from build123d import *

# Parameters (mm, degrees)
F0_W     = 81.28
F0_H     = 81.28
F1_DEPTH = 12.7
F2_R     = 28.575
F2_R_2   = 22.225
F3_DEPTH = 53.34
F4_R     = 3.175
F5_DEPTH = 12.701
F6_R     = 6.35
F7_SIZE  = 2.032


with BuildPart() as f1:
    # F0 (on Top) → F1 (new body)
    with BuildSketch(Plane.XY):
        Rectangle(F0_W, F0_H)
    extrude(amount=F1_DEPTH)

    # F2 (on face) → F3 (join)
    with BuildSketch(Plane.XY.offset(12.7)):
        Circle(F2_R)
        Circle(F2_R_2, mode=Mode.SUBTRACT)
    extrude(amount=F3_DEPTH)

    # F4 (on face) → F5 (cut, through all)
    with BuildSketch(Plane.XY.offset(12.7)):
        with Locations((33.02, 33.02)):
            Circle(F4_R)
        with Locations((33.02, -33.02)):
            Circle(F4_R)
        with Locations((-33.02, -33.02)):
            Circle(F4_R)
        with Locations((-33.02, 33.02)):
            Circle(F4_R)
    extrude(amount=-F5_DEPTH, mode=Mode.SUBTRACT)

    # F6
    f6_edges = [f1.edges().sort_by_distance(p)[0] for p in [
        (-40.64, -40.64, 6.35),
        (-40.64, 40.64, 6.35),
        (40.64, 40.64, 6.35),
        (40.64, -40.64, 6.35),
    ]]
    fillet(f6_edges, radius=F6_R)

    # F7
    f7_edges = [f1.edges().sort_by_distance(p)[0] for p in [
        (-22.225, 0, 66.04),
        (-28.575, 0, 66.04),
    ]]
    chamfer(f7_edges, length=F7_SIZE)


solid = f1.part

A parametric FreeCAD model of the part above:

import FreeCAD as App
import Part
import Sketcher
from FreeCAD import Vector
Q = App.Units.Quantity


def edges_at(feature, points):
    """Names of the edges that pass closest to the given points."""
    edges = feature.Shape.Edges
    near = lambda p: min(range(len(edges)), key=lambda i: edges[i].distToShape(Part.Vertex(*p))[0])
    return sorted({f"Edge{near(p) + 1}" for p in points})


def add_polygon(sketch, points):
    """Adds a closed chain of lines whose ends are joined by coincident constraints."""
    first, n = sketch.GeometryCount, len(points)
    for a, b in zip(points, points[1:] + points[:1]):
        sketch.addGeometry(Part.LineSegment(App.Vector(*a, 0), App.Vector(*b, 0)), False)
    for i in range(n):
        sketch.addConstraint(Sketcher.Constraint("Coincident", first + i, 2, first + (i + 1) % n, 1))

doc = App.newDocument("Part")
body = doc.addObject("PartDesign::Body", "Body")

# Sketch on XY plane
sketch1 = doc.addObject("Sketcher::SketchObject", "Sketch")
body.addObject(sketch1)
sketch1.AttachmentSupport = (doc.XY_Plane, [""])
sketch1.MapMode = "FlatFace"
add_polygon(sketch1, [(-40.64, 40.64), (-40.64, -40.64), (40.64, -40.64), (40.64, 40.64)])  # lines 0-3
sketch1.addConstraint([
    Sketcher.Constraint("Vertical", 0),
    Sketcher.Constraint("Horizontal", 1),
    Sketcher.Constraint("Vertical", 2),
    Sketcher.Constraint("Horizontal", 3),
    Sketcher.Constraint("Symmetric", 0, 2, 2, 2, -1, 1),
    Sketcher.Constraint("Equal", 3, 0),
    Sketcher.Constraint("DistanceX", 1, 1, 1, 2, Q("3.2 in")),
])
pad1 = doc.addObject("PartDesign::Pad", "Pad")
body.addObject(pad1)
pad1.Profile = sketch1
pad1.Length = Q("0.5 in")

# Sketch on XY plane
sketch2 = doc.addObject("Sketcher::SketchObject", "Sketch001")
body.addObject(sketch2)
sketch2.AttachmentSupport = (doc.XY_Plane, [""])
sketch2.MapMode = "FlatFace"
sketch2.AttachmentOffset = App.Placement(Vector(0, 0, 0.5 * 25.4), App.Rotation())
sketch2.addGeometry([
    Part.Circle(Vector(0, 0, 0), Vector(0, 0, 1), 28.575),
    Part.Circle(Vector(0, 0, 0), Vector(0, 0, 1), 22.225),
], False)
sketch2.addConstraint([
    Sketcher.Constraint("Coincident", 0, 3, -1, 1),
    Sketcher.Constraint("Coincident", 1, 3, -1, 1),
    Sketcher.Constraint("Diameter", 0, Q("2.25 in")),
    Sketcher.Constraint("Diameter", 1, Q("1.75 in")),
])
pad2 = doc.addObject("PartDesign::Pad", "Pad001")
body.addObject(pad2)
pad2.Profile = sketch2
pad2.Length = Q("2.1 in")

# Sketch on XY plane
sketch3 = doc.addObject("Sketcher::SketchObject", "Sketch002")
body.addObject(sketch3)
sketch3.AttachmentSupport = (doc.XY_Plane, [""])
sketch3.MapMode = "FlatFace"
sketch3.AttachmentOffset = App.Placement(Vector(0, 0, 0.5 * 25.4), App.Rotation())
sketch3.addGeometry([
    Part.Circle(Vector(33.02, 33.02, 0), Vector(0, 0, 1), 3.175),
    Part.Circle(Vector(33.02, -33.02, 0), Vector(0, 0, 1), 3.175),
    Part.Circle(Vector(-33.02, -33.02, 0), Vector(0, 0, 1), 3.175),
    Part.Circle(Vector(-33.02, 33.02, 0), Vector(0, 0, 1), 3.175),
], False)
sketch3.addConstraint([
    Sketcher.Constraint("Equal", 0, 1),
    Sketcher.Constraint("Equal", 1, 2),
    Sketcher.Constraint("Equal", 2, 3),
    Sketcher.Constraint("Symmetric", 0, 3, 2, 3, -1, 1),
    Sketcher.Constraint("Symmetric", 1, 3, 3, 3, -1, 1),
    Sketcher.Constraint("Symmetric", 1, 3, 2, 3, -2),
    Sketcher.Constraint("Diameter", 0, Q("0.25 in")),
    Sketcher.Constraint("DistanceX", -1, 1, 0, 3, Q("1.3 in")),
    Sketcher.Constraint("DistanceY", -1, 1, 0, 3, Q("1.3 in")),
])
pocket1 = doc.addObject("PartDesign::Pocket", "Pocket")
body.addObject(pocket1)
pocket1.Profile = sketch3
pocket1.Type = "ThroughAll"
doc.recompute()

fillet = doc.addObject("PartDesign::Fillet", "Fillet")
body.addObject(fillet)
fillet.Base = (pocket1, edges_at(pocket1, [
    (-40.64, -40.64, 6.35),
    (-40.64, 40.64, 6.35),
    (40.64, 40.64, 6.35),
    (40.64, -40.64, 6.35),
]))
fillet.Radius = Q("0.25 in")
doc.recompute()

chamfer = doc.addObject("PartDesign::Chamfer", "Chamfer")
body.addObject(chamfer)
chamfer.Base = (fillet, edges_at(fillet, [(-22.225, 0, 66.04), (-28.575, 0, 66.04)]))
chamfer.Size = Q("0.08 in")

doc.recompute()
